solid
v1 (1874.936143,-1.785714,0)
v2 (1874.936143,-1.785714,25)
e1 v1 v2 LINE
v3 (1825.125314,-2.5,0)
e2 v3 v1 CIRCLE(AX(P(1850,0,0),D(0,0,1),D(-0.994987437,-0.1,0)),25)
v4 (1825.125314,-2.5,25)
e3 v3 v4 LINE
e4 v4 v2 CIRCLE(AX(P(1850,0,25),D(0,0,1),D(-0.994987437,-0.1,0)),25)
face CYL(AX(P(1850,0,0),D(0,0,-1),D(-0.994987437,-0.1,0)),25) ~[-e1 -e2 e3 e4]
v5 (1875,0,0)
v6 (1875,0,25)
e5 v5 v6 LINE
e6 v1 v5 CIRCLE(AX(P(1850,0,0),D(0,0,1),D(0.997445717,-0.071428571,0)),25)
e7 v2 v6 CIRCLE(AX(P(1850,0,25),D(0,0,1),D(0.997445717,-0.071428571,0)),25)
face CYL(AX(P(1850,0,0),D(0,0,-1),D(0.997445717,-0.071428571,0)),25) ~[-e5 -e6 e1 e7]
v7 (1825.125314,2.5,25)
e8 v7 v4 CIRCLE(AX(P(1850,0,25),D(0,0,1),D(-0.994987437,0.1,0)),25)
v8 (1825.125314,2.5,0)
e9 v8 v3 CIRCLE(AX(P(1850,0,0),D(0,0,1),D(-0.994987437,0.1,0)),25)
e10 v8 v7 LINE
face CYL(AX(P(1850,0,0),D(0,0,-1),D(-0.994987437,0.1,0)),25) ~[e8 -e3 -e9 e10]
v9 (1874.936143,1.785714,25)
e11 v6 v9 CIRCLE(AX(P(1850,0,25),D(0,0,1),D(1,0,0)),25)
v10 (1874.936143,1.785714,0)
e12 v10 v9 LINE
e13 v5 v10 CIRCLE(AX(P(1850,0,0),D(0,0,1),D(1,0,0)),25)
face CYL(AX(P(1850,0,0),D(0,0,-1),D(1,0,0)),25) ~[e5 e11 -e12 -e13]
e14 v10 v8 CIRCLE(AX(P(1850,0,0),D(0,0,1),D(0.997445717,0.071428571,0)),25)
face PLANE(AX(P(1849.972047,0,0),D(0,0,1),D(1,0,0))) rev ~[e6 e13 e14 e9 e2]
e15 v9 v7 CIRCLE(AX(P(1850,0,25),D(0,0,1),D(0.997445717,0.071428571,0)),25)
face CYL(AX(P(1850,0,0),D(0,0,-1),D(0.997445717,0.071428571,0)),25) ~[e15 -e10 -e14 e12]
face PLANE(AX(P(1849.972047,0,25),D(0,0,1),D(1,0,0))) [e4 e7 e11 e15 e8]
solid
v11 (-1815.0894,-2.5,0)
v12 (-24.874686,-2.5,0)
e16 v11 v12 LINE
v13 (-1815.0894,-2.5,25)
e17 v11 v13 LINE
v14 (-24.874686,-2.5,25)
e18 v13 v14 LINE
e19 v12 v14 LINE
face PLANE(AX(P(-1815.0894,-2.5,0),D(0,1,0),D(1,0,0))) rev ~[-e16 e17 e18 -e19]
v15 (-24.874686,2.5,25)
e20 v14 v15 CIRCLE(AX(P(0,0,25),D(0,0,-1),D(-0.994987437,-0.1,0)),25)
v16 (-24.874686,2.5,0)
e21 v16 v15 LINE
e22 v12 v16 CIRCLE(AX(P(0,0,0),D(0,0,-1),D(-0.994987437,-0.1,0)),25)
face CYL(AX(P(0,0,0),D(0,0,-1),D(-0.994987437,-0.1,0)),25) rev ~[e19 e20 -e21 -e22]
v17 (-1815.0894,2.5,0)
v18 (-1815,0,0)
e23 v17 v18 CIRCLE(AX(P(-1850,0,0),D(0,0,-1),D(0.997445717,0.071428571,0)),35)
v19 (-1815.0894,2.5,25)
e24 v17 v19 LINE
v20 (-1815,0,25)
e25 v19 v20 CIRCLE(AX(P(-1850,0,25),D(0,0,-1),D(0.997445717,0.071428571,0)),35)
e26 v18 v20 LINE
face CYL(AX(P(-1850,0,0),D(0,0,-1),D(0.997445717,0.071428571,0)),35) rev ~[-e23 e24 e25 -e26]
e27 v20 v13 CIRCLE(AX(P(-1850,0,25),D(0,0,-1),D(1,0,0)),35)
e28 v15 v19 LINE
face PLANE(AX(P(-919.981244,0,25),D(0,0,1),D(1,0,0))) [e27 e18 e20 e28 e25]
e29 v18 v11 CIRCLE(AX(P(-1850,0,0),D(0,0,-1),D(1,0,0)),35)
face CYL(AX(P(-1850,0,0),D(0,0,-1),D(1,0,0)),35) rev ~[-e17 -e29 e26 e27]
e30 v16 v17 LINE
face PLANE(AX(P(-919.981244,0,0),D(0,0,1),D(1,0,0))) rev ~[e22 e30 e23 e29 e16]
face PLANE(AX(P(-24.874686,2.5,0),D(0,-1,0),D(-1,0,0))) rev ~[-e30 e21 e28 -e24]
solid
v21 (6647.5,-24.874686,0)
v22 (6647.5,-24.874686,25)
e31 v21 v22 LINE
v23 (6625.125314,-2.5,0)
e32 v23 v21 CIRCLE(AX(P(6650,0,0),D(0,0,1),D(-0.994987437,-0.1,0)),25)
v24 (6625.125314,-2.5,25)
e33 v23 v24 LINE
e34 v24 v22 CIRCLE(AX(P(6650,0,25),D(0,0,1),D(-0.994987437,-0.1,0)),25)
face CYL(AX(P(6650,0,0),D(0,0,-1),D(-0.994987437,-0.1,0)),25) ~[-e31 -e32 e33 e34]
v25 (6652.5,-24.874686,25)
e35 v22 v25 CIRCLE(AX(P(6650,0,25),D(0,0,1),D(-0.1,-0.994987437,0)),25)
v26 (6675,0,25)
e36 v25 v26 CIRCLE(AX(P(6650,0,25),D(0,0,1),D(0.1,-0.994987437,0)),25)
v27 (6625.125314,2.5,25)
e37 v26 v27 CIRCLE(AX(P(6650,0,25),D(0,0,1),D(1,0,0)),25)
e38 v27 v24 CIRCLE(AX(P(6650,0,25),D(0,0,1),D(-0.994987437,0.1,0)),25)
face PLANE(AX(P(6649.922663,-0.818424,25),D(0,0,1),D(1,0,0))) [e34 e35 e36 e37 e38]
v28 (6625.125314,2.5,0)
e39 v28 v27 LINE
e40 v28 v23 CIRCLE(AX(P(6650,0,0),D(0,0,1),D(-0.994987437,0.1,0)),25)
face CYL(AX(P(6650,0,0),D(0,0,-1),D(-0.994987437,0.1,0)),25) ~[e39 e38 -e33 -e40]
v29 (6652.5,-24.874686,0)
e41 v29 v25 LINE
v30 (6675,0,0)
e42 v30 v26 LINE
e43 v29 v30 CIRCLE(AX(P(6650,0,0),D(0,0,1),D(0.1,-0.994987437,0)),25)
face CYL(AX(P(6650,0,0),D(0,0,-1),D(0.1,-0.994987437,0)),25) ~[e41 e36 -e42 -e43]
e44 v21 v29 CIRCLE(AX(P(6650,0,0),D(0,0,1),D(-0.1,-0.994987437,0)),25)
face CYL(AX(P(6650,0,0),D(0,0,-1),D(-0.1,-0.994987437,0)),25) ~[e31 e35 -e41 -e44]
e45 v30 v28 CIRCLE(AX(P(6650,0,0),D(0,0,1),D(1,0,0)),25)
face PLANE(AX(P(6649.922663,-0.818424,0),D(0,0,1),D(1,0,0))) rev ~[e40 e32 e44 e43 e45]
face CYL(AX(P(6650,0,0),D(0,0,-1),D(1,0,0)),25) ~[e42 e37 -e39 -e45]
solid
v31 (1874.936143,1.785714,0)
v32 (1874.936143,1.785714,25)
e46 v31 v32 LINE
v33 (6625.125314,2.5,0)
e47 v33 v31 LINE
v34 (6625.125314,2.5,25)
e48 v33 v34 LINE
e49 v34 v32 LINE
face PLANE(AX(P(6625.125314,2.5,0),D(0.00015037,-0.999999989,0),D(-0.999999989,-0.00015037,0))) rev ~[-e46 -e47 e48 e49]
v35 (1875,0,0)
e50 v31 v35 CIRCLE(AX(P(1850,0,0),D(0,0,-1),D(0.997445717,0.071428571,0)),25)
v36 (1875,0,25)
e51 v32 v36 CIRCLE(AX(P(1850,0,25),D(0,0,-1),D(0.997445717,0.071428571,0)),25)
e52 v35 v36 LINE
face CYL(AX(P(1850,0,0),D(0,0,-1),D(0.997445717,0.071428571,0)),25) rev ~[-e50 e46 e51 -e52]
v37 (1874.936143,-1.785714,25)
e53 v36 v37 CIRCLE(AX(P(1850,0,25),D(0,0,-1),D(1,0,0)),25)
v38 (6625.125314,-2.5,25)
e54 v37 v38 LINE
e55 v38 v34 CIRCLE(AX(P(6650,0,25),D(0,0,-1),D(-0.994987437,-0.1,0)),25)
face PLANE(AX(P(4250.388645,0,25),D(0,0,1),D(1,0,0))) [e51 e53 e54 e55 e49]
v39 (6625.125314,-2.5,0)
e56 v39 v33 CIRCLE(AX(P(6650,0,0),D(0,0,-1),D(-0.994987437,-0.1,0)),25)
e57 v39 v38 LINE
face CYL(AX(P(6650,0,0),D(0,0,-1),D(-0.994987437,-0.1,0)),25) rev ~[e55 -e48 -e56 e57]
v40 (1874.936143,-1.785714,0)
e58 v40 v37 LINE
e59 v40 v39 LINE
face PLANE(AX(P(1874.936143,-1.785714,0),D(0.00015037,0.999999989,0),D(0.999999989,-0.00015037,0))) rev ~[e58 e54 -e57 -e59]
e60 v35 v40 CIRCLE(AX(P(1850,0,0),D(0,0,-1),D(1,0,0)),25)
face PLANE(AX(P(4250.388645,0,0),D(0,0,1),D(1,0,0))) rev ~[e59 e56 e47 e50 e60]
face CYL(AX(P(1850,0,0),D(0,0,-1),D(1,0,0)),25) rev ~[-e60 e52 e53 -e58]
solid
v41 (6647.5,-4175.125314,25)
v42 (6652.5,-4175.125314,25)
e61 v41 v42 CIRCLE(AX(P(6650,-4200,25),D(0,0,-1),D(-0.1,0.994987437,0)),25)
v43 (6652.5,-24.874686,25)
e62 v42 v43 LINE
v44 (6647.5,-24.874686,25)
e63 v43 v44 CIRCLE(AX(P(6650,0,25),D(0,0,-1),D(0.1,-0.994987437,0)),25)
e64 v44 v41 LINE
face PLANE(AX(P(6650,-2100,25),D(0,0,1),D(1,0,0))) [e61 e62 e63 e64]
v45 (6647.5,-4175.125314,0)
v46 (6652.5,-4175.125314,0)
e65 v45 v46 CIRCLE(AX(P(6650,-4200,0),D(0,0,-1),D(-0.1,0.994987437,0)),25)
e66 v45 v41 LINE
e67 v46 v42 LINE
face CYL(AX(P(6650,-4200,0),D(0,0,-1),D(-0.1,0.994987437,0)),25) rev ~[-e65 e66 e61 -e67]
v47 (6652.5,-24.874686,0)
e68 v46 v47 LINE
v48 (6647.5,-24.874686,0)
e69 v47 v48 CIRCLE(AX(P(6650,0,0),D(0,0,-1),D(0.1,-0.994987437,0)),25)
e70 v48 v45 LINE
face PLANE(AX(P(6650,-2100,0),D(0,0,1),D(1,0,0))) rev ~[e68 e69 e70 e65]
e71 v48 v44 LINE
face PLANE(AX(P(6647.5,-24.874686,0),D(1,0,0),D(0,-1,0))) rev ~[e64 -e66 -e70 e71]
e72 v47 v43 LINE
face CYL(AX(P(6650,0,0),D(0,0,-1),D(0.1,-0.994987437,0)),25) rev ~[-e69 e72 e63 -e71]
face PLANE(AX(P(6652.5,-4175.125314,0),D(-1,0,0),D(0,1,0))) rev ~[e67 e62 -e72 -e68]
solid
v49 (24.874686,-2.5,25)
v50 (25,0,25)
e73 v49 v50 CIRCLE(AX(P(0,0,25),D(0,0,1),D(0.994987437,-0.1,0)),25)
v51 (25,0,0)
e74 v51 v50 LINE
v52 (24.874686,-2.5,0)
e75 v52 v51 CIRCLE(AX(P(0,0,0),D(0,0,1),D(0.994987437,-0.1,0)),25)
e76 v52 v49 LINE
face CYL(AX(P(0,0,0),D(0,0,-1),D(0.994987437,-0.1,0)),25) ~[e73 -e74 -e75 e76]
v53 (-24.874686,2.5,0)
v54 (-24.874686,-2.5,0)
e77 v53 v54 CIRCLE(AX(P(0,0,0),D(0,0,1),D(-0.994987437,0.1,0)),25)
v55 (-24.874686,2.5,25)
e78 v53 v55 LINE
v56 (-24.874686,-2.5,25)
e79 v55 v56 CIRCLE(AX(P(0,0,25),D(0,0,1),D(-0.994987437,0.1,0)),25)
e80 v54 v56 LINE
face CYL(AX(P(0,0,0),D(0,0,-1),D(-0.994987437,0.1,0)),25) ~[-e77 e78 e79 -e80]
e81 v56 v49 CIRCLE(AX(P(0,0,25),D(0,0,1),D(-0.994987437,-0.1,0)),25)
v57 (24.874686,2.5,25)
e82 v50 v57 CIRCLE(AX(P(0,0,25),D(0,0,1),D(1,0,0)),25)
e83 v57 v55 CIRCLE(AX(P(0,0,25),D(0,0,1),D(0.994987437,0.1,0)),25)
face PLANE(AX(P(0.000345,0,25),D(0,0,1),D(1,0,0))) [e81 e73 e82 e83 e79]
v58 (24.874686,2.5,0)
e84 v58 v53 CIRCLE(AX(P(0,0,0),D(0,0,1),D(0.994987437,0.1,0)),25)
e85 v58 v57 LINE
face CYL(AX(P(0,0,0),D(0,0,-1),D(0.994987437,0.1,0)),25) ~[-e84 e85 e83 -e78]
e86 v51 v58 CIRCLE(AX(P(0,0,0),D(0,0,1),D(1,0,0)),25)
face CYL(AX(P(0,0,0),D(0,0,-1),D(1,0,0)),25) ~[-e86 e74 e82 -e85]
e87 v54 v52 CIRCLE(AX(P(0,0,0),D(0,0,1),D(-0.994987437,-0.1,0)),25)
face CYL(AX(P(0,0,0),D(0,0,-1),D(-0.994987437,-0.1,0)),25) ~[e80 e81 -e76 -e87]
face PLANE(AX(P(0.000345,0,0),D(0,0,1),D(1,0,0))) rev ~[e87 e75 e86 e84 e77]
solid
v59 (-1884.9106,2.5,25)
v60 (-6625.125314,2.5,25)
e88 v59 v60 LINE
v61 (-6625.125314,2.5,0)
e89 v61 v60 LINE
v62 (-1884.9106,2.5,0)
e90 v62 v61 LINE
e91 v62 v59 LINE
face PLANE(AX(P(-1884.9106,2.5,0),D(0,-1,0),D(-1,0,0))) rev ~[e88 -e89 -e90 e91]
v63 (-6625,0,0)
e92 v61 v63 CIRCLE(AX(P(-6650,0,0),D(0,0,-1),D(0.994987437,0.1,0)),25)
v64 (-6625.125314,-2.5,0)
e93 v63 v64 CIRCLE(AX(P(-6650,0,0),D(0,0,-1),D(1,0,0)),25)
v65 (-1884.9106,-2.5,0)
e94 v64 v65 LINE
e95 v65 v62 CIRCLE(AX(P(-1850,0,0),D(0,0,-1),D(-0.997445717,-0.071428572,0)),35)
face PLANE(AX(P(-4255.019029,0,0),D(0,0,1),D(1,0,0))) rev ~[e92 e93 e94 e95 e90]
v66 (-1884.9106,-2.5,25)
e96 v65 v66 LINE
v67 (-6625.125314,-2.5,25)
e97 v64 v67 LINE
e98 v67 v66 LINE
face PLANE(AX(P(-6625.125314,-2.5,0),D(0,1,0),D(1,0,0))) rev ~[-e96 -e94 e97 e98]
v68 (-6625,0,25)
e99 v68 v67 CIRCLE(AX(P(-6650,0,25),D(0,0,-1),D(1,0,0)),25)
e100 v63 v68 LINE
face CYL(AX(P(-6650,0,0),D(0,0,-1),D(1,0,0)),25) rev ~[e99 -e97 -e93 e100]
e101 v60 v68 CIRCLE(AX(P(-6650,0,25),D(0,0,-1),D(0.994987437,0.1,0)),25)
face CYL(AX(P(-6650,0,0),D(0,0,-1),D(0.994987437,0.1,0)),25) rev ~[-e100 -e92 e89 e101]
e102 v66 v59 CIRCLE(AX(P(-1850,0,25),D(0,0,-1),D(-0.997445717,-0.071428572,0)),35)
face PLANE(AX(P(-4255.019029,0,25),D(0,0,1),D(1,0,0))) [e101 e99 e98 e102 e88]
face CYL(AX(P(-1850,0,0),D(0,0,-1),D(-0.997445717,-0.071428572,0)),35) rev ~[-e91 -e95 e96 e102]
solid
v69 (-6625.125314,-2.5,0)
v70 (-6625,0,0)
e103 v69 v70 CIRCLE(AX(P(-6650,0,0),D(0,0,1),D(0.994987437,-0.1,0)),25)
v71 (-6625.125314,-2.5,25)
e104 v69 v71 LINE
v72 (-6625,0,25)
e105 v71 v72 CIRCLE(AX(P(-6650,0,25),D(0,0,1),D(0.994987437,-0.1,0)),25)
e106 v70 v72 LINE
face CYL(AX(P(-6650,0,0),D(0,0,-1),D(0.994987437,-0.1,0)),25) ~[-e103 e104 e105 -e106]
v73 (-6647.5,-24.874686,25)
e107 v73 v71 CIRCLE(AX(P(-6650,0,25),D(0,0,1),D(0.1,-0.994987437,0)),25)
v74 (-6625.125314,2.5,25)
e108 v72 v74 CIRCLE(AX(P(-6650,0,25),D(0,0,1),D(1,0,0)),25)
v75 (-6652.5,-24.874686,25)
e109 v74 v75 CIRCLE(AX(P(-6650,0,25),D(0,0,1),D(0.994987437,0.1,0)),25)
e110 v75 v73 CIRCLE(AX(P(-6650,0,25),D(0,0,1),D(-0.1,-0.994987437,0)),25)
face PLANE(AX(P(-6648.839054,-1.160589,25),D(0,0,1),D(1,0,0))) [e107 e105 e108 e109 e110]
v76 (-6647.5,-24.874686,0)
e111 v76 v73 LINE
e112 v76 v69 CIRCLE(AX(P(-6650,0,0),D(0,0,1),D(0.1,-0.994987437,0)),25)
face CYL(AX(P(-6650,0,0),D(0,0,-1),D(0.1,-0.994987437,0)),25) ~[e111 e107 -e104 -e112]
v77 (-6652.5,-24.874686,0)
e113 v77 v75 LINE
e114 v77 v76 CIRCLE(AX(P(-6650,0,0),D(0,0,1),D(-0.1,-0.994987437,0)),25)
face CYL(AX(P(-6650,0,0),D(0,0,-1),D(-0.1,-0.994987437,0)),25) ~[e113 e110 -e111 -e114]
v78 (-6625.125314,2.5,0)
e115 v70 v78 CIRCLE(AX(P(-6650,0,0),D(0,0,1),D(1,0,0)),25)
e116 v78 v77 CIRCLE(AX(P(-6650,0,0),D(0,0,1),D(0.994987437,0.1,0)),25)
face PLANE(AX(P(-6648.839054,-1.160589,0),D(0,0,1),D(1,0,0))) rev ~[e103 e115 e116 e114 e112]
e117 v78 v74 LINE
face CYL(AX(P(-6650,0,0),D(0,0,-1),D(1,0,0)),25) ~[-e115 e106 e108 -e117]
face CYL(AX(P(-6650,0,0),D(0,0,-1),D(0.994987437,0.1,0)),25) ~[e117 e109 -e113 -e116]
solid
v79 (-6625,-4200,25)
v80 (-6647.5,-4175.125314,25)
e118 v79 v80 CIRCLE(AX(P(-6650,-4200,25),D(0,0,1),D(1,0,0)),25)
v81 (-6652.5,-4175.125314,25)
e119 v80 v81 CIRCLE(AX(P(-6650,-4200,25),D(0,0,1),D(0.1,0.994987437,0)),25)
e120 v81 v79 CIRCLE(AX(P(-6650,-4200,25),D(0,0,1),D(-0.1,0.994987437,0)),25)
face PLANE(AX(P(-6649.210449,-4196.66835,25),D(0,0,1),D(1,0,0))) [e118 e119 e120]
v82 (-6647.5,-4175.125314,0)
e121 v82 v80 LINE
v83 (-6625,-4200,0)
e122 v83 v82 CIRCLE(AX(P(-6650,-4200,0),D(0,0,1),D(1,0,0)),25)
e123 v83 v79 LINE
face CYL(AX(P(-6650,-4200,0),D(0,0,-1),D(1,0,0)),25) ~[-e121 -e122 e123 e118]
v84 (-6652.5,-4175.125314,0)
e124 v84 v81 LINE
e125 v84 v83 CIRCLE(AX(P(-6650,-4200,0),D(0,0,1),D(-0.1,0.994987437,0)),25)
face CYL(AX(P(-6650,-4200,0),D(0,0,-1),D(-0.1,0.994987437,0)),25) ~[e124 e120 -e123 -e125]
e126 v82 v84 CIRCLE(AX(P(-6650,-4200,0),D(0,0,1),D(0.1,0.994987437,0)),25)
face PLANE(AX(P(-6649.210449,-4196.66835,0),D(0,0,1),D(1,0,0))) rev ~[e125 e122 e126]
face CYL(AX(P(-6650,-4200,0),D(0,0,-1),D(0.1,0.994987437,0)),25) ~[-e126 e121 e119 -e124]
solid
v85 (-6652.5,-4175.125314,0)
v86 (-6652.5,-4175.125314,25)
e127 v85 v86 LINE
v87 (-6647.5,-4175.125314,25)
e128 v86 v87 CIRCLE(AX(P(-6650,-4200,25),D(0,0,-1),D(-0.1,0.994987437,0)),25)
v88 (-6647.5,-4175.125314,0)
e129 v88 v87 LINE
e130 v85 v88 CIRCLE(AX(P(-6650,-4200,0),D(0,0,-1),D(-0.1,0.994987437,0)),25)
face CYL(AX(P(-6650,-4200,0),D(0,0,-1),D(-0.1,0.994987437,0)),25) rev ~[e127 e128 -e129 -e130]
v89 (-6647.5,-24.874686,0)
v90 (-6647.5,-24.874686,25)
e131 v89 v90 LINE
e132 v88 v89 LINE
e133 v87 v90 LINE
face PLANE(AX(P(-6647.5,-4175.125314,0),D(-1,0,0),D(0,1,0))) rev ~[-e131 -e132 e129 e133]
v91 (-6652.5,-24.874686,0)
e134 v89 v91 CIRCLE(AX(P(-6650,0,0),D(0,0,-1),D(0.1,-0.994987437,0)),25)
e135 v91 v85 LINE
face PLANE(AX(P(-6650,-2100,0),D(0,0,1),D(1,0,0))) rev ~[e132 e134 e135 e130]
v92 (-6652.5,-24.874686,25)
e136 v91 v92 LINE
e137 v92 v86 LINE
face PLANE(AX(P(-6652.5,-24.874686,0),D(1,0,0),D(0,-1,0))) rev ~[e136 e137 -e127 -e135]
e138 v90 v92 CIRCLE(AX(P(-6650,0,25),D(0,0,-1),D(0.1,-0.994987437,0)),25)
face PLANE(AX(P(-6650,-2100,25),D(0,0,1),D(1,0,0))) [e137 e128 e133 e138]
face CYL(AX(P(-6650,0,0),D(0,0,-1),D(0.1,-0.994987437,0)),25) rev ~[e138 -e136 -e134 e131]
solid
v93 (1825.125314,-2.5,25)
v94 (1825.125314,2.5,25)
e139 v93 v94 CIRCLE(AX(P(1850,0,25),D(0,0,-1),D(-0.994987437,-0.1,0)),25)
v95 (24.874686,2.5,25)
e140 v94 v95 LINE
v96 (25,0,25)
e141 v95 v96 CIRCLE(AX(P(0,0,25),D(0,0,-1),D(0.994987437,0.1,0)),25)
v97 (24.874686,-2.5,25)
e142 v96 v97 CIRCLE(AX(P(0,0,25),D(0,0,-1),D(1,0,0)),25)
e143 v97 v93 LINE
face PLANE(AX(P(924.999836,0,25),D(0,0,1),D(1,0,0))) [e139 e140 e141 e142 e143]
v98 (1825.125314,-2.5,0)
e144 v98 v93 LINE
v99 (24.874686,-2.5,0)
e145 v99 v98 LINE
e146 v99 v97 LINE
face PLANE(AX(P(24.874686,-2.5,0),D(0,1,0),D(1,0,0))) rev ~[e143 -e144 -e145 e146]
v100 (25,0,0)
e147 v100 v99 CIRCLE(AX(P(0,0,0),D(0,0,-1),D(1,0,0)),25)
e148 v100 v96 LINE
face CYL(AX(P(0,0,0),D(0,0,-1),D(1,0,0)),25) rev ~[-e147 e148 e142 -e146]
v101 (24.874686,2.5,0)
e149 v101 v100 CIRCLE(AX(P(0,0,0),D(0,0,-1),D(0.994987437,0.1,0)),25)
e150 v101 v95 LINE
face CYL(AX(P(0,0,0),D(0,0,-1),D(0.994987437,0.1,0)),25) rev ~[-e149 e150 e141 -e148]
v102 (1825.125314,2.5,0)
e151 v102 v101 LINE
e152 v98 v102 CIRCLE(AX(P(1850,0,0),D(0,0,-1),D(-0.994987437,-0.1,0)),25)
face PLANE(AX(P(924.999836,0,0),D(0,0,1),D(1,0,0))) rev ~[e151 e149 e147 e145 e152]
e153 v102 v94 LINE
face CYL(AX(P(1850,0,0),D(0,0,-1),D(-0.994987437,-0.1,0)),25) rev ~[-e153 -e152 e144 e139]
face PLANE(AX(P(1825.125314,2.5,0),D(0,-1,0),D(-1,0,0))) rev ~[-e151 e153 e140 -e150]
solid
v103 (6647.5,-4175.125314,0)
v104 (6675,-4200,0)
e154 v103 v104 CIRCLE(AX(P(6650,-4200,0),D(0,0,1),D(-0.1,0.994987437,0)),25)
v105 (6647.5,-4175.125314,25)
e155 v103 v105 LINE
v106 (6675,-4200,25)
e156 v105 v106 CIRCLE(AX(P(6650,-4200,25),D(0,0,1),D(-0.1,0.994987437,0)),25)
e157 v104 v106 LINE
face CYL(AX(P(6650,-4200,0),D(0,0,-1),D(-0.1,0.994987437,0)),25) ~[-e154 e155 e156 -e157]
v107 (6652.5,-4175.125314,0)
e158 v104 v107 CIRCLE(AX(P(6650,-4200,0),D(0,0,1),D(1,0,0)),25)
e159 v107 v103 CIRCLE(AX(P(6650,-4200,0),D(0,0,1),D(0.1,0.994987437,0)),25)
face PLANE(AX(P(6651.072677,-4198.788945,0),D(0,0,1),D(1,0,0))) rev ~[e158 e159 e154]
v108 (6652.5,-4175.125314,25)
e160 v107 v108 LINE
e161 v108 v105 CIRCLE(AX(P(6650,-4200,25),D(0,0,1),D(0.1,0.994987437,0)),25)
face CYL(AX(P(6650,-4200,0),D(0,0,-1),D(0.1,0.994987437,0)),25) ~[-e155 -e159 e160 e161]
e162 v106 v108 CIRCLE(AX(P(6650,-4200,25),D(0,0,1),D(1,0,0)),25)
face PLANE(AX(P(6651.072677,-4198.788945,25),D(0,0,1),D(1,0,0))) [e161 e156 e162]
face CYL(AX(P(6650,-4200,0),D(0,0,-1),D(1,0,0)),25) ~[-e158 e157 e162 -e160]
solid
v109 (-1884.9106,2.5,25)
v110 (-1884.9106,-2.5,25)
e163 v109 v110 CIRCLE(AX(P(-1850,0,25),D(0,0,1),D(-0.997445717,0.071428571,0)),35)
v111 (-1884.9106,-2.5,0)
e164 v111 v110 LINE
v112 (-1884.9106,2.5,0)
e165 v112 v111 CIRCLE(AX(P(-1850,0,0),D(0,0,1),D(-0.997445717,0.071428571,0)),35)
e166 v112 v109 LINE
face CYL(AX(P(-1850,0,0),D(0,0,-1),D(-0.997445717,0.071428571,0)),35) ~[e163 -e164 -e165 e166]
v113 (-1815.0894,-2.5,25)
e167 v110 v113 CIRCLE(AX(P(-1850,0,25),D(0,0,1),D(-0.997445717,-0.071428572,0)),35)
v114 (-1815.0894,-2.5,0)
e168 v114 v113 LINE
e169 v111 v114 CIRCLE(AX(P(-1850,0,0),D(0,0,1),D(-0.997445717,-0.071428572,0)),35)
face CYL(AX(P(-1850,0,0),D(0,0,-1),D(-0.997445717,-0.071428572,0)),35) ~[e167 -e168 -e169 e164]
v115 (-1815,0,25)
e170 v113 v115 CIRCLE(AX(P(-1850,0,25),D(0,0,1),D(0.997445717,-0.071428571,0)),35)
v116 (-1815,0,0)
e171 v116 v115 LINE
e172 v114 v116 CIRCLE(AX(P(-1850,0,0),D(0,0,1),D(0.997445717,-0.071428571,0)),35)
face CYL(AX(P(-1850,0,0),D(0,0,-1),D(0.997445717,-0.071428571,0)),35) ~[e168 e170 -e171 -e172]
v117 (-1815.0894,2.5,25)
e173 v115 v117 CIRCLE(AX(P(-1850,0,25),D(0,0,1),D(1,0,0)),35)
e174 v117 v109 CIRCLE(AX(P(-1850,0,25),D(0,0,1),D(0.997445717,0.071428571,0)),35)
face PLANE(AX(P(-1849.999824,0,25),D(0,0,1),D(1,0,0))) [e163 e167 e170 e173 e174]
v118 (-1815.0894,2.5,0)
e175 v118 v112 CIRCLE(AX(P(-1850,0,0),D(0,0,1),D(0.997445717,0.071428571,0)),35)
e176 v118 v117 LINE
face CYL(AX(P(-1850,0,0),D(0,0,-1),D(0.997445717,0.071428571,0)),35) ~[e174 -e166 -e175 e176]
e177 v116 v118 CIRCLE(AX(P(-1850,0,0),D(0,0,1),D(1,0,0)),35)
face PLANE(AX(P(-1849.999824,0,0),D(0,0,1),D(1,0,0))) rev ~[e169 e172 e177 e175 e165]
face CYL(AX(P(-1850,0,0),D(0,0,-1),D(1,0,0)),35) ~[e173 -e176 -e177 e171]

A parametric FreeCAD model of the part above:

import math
import FreeCAD as App
import Part
import Sketcher

doc = App.newDocument("Part")
body = doc.addObject("PartDesign::Body", "Body")

sketch1 = body.newObject("Sketcher::SketchObject", "Sketch")
sketch1.AttachmentSupport = (doc.getObject("XY_Plane"), [""])
sketch1.MapMode = "FlatFace"
sketch1.addGeometry([
    Part.ArcOfCircle(Part.Circle(App.Vector(-1850, 0, 0), App.Vector(0, 0, 1), 35), math.radians(0), math.radians(4.1)),
    Part.ArcOfCircle(Part.Circle(App.Vector(-1850, 0, 0), App.Vector(0, 0, 1), 35), math.radians(-4.1), math.radians(0)),
    Part.LineSegment(App.Vector(-1815.1, -2.5, 0), App.Vector(-24.9, -2.5, 0)),
    Part.ArcOfCircle(Part.Circle(App.Vector(0, 0, 0), App.Vector(0, 0, 1), 25), math.radians(174.26), math.radians(185.74)),
    Part.LineSegment(App.Vector(-24.9, 2.5, 0), App.Vector(-1815.1, 2.5, 0)),
], False)
sketch1.addConstraint([
    Sketcher.Constraint("Tangent", 0, 1, 1, 2),
    Sketcher.Constraint("Coincident", 1, 1, 2, 1),
    Sketcher.Constraint("Coincident", 2, 2, 3, 2),
    Sketcher.Constraint("Coincident", 3, 1, 4, 1),
    Sketcher.Constraint("Coincident", 4, 2, 0, 2),
    Sketcher.Constraint("Horizontal", 2),
    Sketcher.Constraint("Horizontal", 4),
    Sketcher.Constraint("Coincident", 3, 3, -1, 1),
    Sketcher.Constraint("Equal", 0, 1),
    Sketcher.Constraint("Symmetric", 1, 1, 4, 2, -1),
    Sketcher.Constraint("PointOnObject", 0, 1, -1),
    Sketcher.Constraint("Radius", 0, 35.0),
    Sketcher.Constraint("Radius", 3, 25.0),
    Sketcher.Constraint("DistanceX", 0, 3, -1, 1, 1850.0),
    Sketcher.Constraint("DistanceY", 2, 2, 3, 1, 5.0),
])
pad1 = body.newObject("PartDesign::Pad", "Pad")
pad1.Profile = sketch1
pad1.Length = 25
body2 = doc.addObject("PartDesign::Body", "Body001")

sketch2 = body2.newObject("Sketcher::SketchObject", "Sketch001")
sketch2.AttachmentSupport = (doc.getObject("XY_Plane001"), [""])
sketch2.MapMode = "FlatFace"
sketch2.addGeometry([
    Part.ArcOfCircle(Part.Circle(App.Vector(-1850, 0, 0), App.Vector(0, 0, 1), 35), math.radians(175.9), math.radians(184.1)),
    Part.LineSegment(App.Vector(-1884.9, 2.5, 0), App.Vector(-6625.1, 2.5, 0)),
    Part.ArcOfCircle(Part.Circle(App.Vector(-6650, 0, 0), App.Vector(0, 0, 1), 25), math.radians(0), math.radians(5.74)),
    Part.ArcOfCircle(Part.Circle(App.Vector(-6650, 0, 0), App.Vector(0, 0, 1), 25), math.radians(-5.74), math.radians(0)),
    Part.LineSegment(App.Vector(-6625.1, -2.5, 0), App.Vector(-1884.9, -2.5, 0)),
], False)
sketch2.addConstraint([
    Sketcher.Constraint("Coincident", 0, 1, 1, 1),
    Sketcher.Constraint("Coincident", 1, 2, 2, 2),
    Sketcher.Constraint("Tangent", 2, 1, 3, 2),
    Sketcher.Constraint("Coincident", 3, 1, 4, 1),
    Sketcher.Constraint("Coincident", 4, 2, 0, 2),
    Sketcher.Constraint("Horizontal", 1),
    Sketcher.Constraint("Horizontal", 4),
    Sketcher.Constraint("Equal", 2, 3),
    Sketcher.Constraint("Symmetric", 1, 2, 3, 1, -1),
    Sketcher.Constraint("PointOnObject", 0, 3, -1),
    Sketcher.Constraint("PointOnObject", 2, 1, -1),
    Sketcher.Constraint("Radius", 0, 35.0),
    Sketcher.Constraint("Radius", 2, 25.0),
    Sketcher.Constraint("DistanceX", 0, 3, -1, 1, 1850.0),
    Sketcher.Constraint("DistanceX", 2, 3, -1, 1, 6650.0),
    Sketcher.Constraint("DistanceY", 3, 1, 1, 2, 5.0),
])
pad2 = body2.newObject("PartDesign::Pad", "Pad001")
pad2.Profile = sketch2
pad2.Length = 25
body3 = doc.addObject("PartDesign::Body", "Body002")

sketch3 = body3.newObject("Sketcher::SketchObject", "Sketch002")
sketch3.AttachmentSupport = (doc.getObject("XY_Plane002"), [""])
sketch3.MapMode = "FlatFace"
sketch3.addGeometry([
    Part.ArcOfCircle(Part.Circle(App.Vector(-6650, 0, 0), App.Vector(0, 0, 1), 25), math.radians(-95.74), math.radians(-84.26)),
    Part.LineSegment(App.Vector(-6652, -25, 0), App.Vector(-6652, -4175, 0)),
    Part.ArcOfCircle(Part.Circle(App.Vector(-6650, -4200, 0), App.Vector(0, 0, 1), 25), math.radians(84.26), math.radians(95.74)),
    Part.LineSegment(App.Vector(-6648, -4175, 0), App.Vector(-6648, -25, 0)),
], False)
sketch3.addConstraint([
    Sketcher.Constraint("Coincident", 0, 1, 1, 1),
    Sketcher.Constraint("Coincident", 1, 2, 2, 2),
    Sketcher.Constraint("Coincident", 2, 1, 3, 1),
    Sketcher.Constraint("Coincident", 3, 2, 0, 2),
    Sketcher.Constraint("Vertical", 1),
    Sketcher.Constraint("Vertical", 3),
    Sketcher.Constraint("Equal", 0, 2),
    Sketcher.Constraint("PointOnObject", 0, 3, -1),
    Sketcher.Constraint("Horizontal", 1, 2, 2, 1),
    Sketcher.Constraint("Horizontal", 0, 1, 3, 2),
    Sketcher.Constraint("Radius", 0, 25.0),
    Sketcher.Constraint("DistanceX", 0, 3, -1, 1, 6650.0),
    Sketcher.Constraint("DistanceY", 2, 3, -1, 1, 4200.0),
    Sketcher.Constraint("DistanceX", 1, 2, 2, 1, 5.0),
])
pad3 = body3.newObject("PartDesign::Pad", "Pad002")
pad3.Profile = sketch3
pad3.Length = 25
body4 = doc.addObject("PartDesign::Body", "Body003")

sketch4 = body4.newObject("Sketcher::SketchObject", "Sketch003")
sketch4.AttachmentSupport = (doc.getObject("XY_Plane003"), [""])
sketch4.MapMode = "FlatFace"
sketch4.addGeometry([
    Part.LineSegment(App.Vector(1825.1, 2.5, 0), App.Vector(24.9, 2.5, 0)),
    Part.ArcOfCircle(Part.Circle(App.Vector(0, 0, 0), App.Vector(0, 0, 1), 25), math.radians(0), math.radians(5.74)),
    Part.ArcOfCircle(Part.Circle(App.Vector(0, 0, 0), App.Vector(0, 0, 1), 25), math.radians(-5.74), math.radians(0)),
    Part.LineSegment(App.Vector(24.9, -2.5, 0), App.Vector(1825.1, -2.5, 0)),
    Part.ArcOfCircle(Part.Circle(App.Vector(1850, 0, 0), App.Vector(0, 0, 1), 25), math.radians(174.26), math.radians(185.74)),
], False)
sketch4.addConstraint([
    Sketcher.Constraint("Coincident", 0, 2, 1, 2),
    Sketcher.Constraint("Tangent", 1, 1, 2, 2),
    Sketcher.Constraint("Coincident", 2, 1, 3, 1),
    Sketcher.Constraint("Coincident", 3, 2, 4, 2),
    Sketcher.Constraint("Coincident", 4, 1, 0, 1),
    Sketcher.Constraint("Horizontal", 0),
    Sketcher.Constraint("Horizontal", 3),
    Sketcher.Constraint("Coincident", 1, 3, -1, 1),
    Sketcher.Constraint("Equal", 1, 2),
    Sketcher.Constraint("Equal", 2, 4),
    Sketcher.Constraint("Symmetric", 3, 2, 4, 1, -1),
    Sketcher.Constraint("PointOnObject", 1, 1, -1),
    Sketcher.Constraint("Radius", 1, 25.0),
    Sketcher.Constraint("DistanceX", -1, 1, 4, 3, 1850.0),
    Sketcher.Constraint("DistanceY", 2, 1, 0, 2, 5.0),
])
pad4 = body4.newObject("PartDesign::Pad", "Pad003")
pad4.Profile = sketch4
pad4.Length = 25
body5 = doc.addObject("PartDesign::Body", "Body004")

sketch5 = body5.newObject("Sketcher::SketchObject", "Sketch004")
sketch5.AttachmentSupport = (doc.getObject("XY_Plane004"), [""])
sketch5.MapMode = "FlatFace"
sketch5.addGeometry([
    Part.LineSegment(App.Vector(6625.1, 2.5, 0), App.Vector(1874.9, 1.8, 0)),
    Part.ArcOfCircle(Part.Circle(App.Vector(1850, 0, 0), App.Vector(0, 0, 1), 25), math.radians(0), math.radians(4.1)),
    Part.ArcOfCircle(Part.Circle(App.Vector(1850, 0, 0), App.Vector(0, 0, 1), 25), math.radians(-4.1), math.radians(0)),
    Part.LineSegment(App.Vector(1874.9, -1.8, 0), App.Vector(6625.1, -2.5, 0)),
    Part.ArcOfCircle(Part.Circle(App.Vector(6650, 0, 0), App.Vector(0, 0, 1), 25), math.radians(174.26), math.radians(185.74)),
], False)
sketch5.addConstraint([
    Sketcher.Constraint("Coincident", 0, 2, 1, 2),
    Sketcher.Constraint("Tangent", 1, 1, 2, 2),
    Sketcher.Constraint("Coincident", 2, 1, 3, 1),
    Sketcher.Constraint("Coincident", 3, 2, 4, 2),
    Sketcher.Constraint("Coincident", 4, 1, 0, 1),
    Sketcher.Constraint("Equal", 1, 2),
    Sketcher.Constraint("Equal", 2, 4),
    Sketcher.Constraint("Symmetric", 0, 2, 2, 1, -1),
    Sketcher.Constraint("Symmetric", 3, 2, 4, 1, -1),
    Sketcher.Constraint("PointOnObject", 1, 1, -1),
    Sketcher.Constraint("Radius", 1, 25.0),
    Sketcher.Constraint("DistanceX", -1, 1, 1, 3, 1850.0),
    Sketcher.Constraint("DistanceX", -1, 1, 4, 3, 6650.0),
    Sketcher.Constraint("DistanceY", 3, 2, 4, 1, 5.0),
    Sketcher.Constraint("DistanceY", 2, 1, 0, 2, 3.571429),
])
pad5 = body5.newObject("PartDesign::Pad", "Pad004")
pad5.Profile = sketch5
pad5.Length = 25
body6 = doc.addObject("PartDesign::Body", "Body005")

sketch6 = body6.newObject("Sketcher::SketchObject", "Sketch005")
sketch6.AttachmentSupport = (doc.getObject("XY_Plane005"), [""])
sketch6.MapMode = "FlatFace"
sketch6.addGeometry([
    Part.ArcOfCircle(Part.Circle(App.Vector(6650, 0, 0), App.Vector(0, 0, 1), 25), math.radians(-95.74), math.radians(-84.26)),
    Part.LineSegment(App.Vector(6648, -25, 0), App.Vector(6648, -4175, 0)),
    Part.ArcOfCircle(Part.Circle(App.Vector(6650, -4200, 0), App.Vector(0, 0, 1), 25), math.radians(84.26), math.radians(95.74)),
    Part.LineSegment(App.Vector(6652, -4175, 0), App.Vector(6652, -25, 0)),
], False)
sketch6.addConstraint([
    Sketcher.Constraint("Coincident", 0, 1, 1, 1),
    Sketcher.Constraint("Coincident", 1, 2, 2, 2),
    Sketcher.Constraint("Coincident", 2, 1, 3, 1),
    Sketcher.Constraint("Coincident", 3, 2, 0, 2),
    Sketcher.Constraint("Vertical", 1),
    Sketcher.Constraint("Vertical", 3),
    Sketcher.Constraint("Equal", 0, 2),
    Sketcher.Constraint("PointOnObject", 0, 3, -1),
    Sketcher.Constraint("Horizontal", 1, 2, 2, 1),
    Sketcher.Constraint("Horizontal", 0, 1, 3, 2),
    Sketcher.Constraint("Radius", 0, 25.0),
    Sketcher.Constraint("DistanceX", -1, 1, 0, 3, 6650.0),
    Sketcher.Constraint("DistanceY", 2, 3, -1, 1, 4200.0),
    Sketcher.Constraint("DistanceX", 1, 2, 2, 1, 5.0),
])
pad6 = body6.newObject("PartDesign::Pad", "Pad005")
pad6.Profile = sketch6
pad6.Length = 25
body7 = doc.addObject("PartDesign::Body", "Body006")

sketch7 = body7.newObject("Sketcher::SketchObject", "Sketch006")
sketch7.AttachmentSupport = (doc.getObject("XY_Plane006"), [""])
sketch7.MapMode = "FlatFace"
sketch7.addGeometry([
    Part.ArcOfCircle(Part.Circle(App.Vector(-6650, -4200, 0), App.Vector(0, 0, 1), 25), math.radians(96), math.radians(360)),
    Part.ArcOfCircle(Part.Circle(App.Vector(-6650, -4200, 0), App.Vector(0, 0, 1), 25), math.radians(0), math.radians(84)),
    Part.ArcOfCircle(Part.Circle(App.Vector(-6650, -4200, 0), App.Vector(0, 0, 1), 25), math.radians(84.26), math.radians(95.74)),
], False)
sketch7.addConstraint([
    Sketcher.Constraint("Tangent", 0, 2, 1, 1),
    Sketcher.Constraint("Tangent", 1, 2, 2, 1),
    Sketcher.Constraint("Tangent", 2, 2, 0, 1),
    Sketcher.Constraint("Horizontal", 2, 3, 0, 2),
    Sketcher.Constraint("Horizontal", 1, 2, 2, 2),
    Sketcher.Constraint("Radius", 0, 25.0),
    Sketcher.Constraint("DistanceX", 0, 3, -1, 1, 6650.0),
    Sketcher.Constraint("DistanceY", 0, 3, -1, 1, 4200.0),
    Sketcher.Constraint("DistanceX", 2, 2, 1, 2, 5.0),
])
pad7 = body7.newObject("PartDesign::Pad", "Pad006")
pad7.Profile = sketch7
pad7.Length = 25
body8 = doc.addObject("PartDesign::Body", "Body007")

sketch8 = body8.newObject("Sketcher::SketchObject", "Sketch007")
sketch8.AttachmentSupport = (doc.getObject("XY_Plane007"), [""])
sketch8.MapMode = "FlatFace"
sketch8.addGeometry([
    Part.ArcOfCircle(Part.Circle(App.Vector(-6650, 0, 0), App.Vector(0, 0, 1), 25), math.radians(0), math.radians(5.74)),
    Part.ArcOfCircle(Part.Circle(App.Vector(-6650, 0, 0), App.Vector(0, 0, 1), 25), math.radians(6), math.radians(264)),
    Part.ArcOfCircle(Part.Circle(App.Vector(-6650, 0, 0), App.Vector(0, 0, 1), 25), math.radians(-95.74), math.radians(-84.26)),
    Part.ArcOfCircle(Part.Circle(App.Vector(-6650, 0, 0), App.Vector(0, 0, 1), 25), math.radians(-84), math.radians(-6)),
    Part.ArcOfCircle(Part.Circle(App.Vector(-6650, 0, 0), App.Vector(0, 0, 1), 25), math.radians(-5.74), math.radians(0)),
], False)
sketch8.addConstraint([
    Sketcher.Constraint("Tangent", 0, 2, 1, 1),
    Sketcher.Constraint("Tangent", 1, 2, 2, 1),
    Sketcher.Constraint("Tangent", 2, 2, 3, 1),
    Sketcher.Constraint("Tangent", 3, 2, 4, 1),
    Sketcher.Constraint("Tangent", 4, 2, 0, 1),
    Sketcher.Constraint("Coincident", 2, 3, 0, 3),
    Sketcher.Constraint("Symmetric", 0, 2, 3, 2, -1),
    Sketcher.Constraint("PointOnObject", 4, 2, -1),
    Sketcher.Constraint("Horizontal", 1, 2, 2, 2),
    Sketcher.Constraint("Radius", 0, 25.0),
    Sketcher.Constraint("DistanceX", 0, 3, -1, 1, 6650.0),
    Sketcher.Constraint("DistanceX", 1, 2, 2, 2, 5.0),
    Sketcher.Constraint("DistanceY", 3, 2, 0, 2, 5.0),
])
pad8 = body8.newObject("PartDesign::Pad", "Pad007")
pad8.Profile = sketch8
pad8.Length = 25
body9 = doc.addObject("PartDesign::Body", "Body008")

sketch9 = body9.newObject("Sketcher::SketchObject", "Sketch008")
sketch9.AttachmentSupport = (doc.getObject("XY_Plane008"), [""])
sketch9.MapMode = "FlatFace"
sketch9.addGeometry([
    Part.ArcOfCircle(Part.Circle(App.Vector(-1850, 0, 0), App.Vector(0, 0, 1), 35), math.radians(-4.1), math.radians(0)),
    Part.ArcOfCircle(Part.Circle(App.Vector(-1850, 0, 0), App.Vector(0, 0, 1), 35), math.radians(0), math.radians(4.1)),
    Part.ArcOfCircle(Part.Circle(App.Vector(-1850, 0, 0), App.Vector(0, 0, 1), 35), math.radians(4), math.radians(176)),
    Part.ArcOfCircle(Part.Circle(App.Vector(-1850, 0, 0), App.Vector(0, 0, 1), 35), math.radians(175.9), math.radians(184.1)),
    Part.ArcOfCircle(Part.Circle(App.Vector(-1850, 0, 0), App.Vector(0, 0, 1), 35), math.radians(-176), math.radians(-4)),
], False)
sketch9.addConstraint([
    Sketcher.Constraint("Tangent", 0, 2, 1, 1),
    Sketcher.Constraint("Tangent", 1, 2, 2, 1),
    Sketcher.Constraint("Tangent", 2, 2, 3, 1),
    Sketcher.Constraint("Tangent", 3, 2, 4, 1),
    Sketcher.Constraint("Tangent", 4, 2, 0, 1),
    Sketcher.Constraint("Coincident", 2, 3, 0, 3),
    Sketcher.Constraint("Symmetric", 2, 2, 3, 2, -1),
    Sketcher.Constraint("PointOnObject", 0, 2, -1),
    Sketcher.Constraint("Horizontal", 1, 2, 2, 2),
    Sketcher.Constraint("Horizontal", 3, 2, 4, 2),
    Sketcher.Constraint("Radius", 0, 35.0),
    Sketcher.Constraint("DistanceX", 0, 3, -1, 1, 1850.0),
    Sketcher.Constraint("DistanceY", 3, 2, 2, 2, 5.0),
])
pad9 = body9.newObject("PartDesign::Pad", "Pad008")
pad9.Profile = sketch9
pad9.Length = 25
body10 = doc.addObject("PartDesign::Body", "Body009")

sketch10 = body10.newObject("Sketcher::SketchObject", "Sketch009")
sketch10.AttachmentSupport = (doc.getObject("XY_Plane009"), [""])
sketch10.MapMode = "FlatFace"
sketch10.addGeometry([
    Part.ArcOfCircle(Part.Circle(App.Vector(0, 0, 0), App.Vector(0, 0, 1), 25), math.radians(6), math.radians(174)),
    Part.ArcOfCircle(Part.Circle(App.Vector(0, 0, 0), App.Vector(0, 0, 1), 25), math.radians(174.26), math.radians(185.74)),
    Part.ArcOfCircle(Part.Circle(App.Vector(0, 0, 0), App.Vector(0, 0, 1), 25), math.radians(-174), math.radians(-6)),
    Part.ArcOfCircle(Part.Circle(App.Vector(0, 0, 0), App.Vector(0, 0, 1), 25), math.radians(-5.74), math.radians(0)),
    Part.ArcOfCircle(Part.Circle(App.Vector(0, 0, 0), App.Vector(0, 0, 1), 25), math.radians(0), math.radians(5.74)),
], False)
sketch10.addConstraint([
    Sketcher.Constraint("Tangent", 0, 2, 1, 1),
    Sketcher.Constraint("Tangent", 1, 2, 2, 1),
    Sketcher.Constraint("Tangent", 2, 2, 3, 1),
    Sketcher.Constraint("Tangent", 3, 2, 4, 1),
    Sketcher.Constraint("Tangent", 4, 2, 0, 1),
    Sketcher.Constraint("Coincident", 0, 3, -1, 1),
    Sketcher.Constraint("Coincident", 2, 3, -1, 1),
    Sketcher.Constraint("PointOnObject", 3, 2, -1),
    Sketcher.Constraint("Horizontal", 1, 2, 2, 2),
    Sketcher.Constraint("Horizontal", 0, 2, 4, 2),
    Sketcher.Constraint("Vertical", 0, 2, 1, 2),
    Sketcher.Constraint("Radius", 0, 25.0),
    Sketcher.Constraint("DistanceY", 1, 2, 0, 2, 5.0),
])
pad10 = body10.newObject("PartDesign::Pad", "Pad009")
pad10.Profile = sketch10
pad10.Length = 25
body11 = doc.addObject("PartDesign::Body", "Body010")

sketch11 = body11.newObject("Sketcher::SketchObject", "Sketch010")
sketch11.AttachmentSupport = (doc.getObject("XY_Plane010"), [""])
sketch11.MapMode = "FlatFace"
sketch11.addGeometry([
    Part.ArcOfCircle(Part.Circle(App.Vector(1850, 0, 0), App.Vector(0, 0, 1), 25), math.radians(4), math.radians(174)),
    Part.ArcOfCircle(Part.Circle(App.Vector(1850, 0, 0), App.Vector(0, 0, 1), 25), math.radians(174.26), math.radians(185.74)),
    Part.ArcOfCircle(Part.Circle(App.Vector(1850, 0, 0), App.Vector(0, 0, 1), 25), math.radians(-174), math.radians(-4)),
    Part.ArcOfCircle(Part.Circle(App.Vector(1850, 0, 0), App.Vector(0, 0, 1), 25), math.radians(-4.1), math.radians(0)),
    Part.ArcOfCircle(Part.Circle(App.Vector(1850, 0, 0), App.Vector(0, 0, 1), 25), math.radians(0), math.radians(4.1)),
], False)
sketch11.addConstraint([
    Sketcher.Constraint("Tangent", 0, 2, 1, 1),
    Sketcher.Constraint("Tangent", 1, 2, 2, 1),
    Sketcher.Constraint("Tangent", 2, 2, 3, 1),
    Sketcher.Constraint("Tangent", 3, 2, 4, 1),
    Sketcher.Constraint("Tangent", 4, 2, 0, 1),
    Sketcher.Constraint("Coincident", 3, 3, 0, 3),
    Sketcher.Constraint("Symmetric", 0, 2, 1, 2, -1),
    Sketcher.Constraint("PointOnObject", 3, 2, -1),
    Sketcher.Constraint("Vertical", 2, 2, 4, 2),
    Sketcher.Constraint("Radius", 0, 25.0),
    Sketcher.Constraint("DistanceX", -1, 1, 0, 3, 1850.0),
    Sketcher.Constraint("DistanceY", 1, 2, 0, 2, 5.0),
    Sketcher.Constraint("DistanceY", 2, 2, 4, 2, 3.571429),
])
pad11 = body11.newObject("PartDesign::Pad", "Pad010")
pad11.Profile = sketch11
pad11.Length = 25
body12 = doc.addObject("PartDesign::Body", "Body011")

sketch12 = body12.newObject("Sketcher::SketchObject", "Sketch011")
sketch12.AttachmentSupport = (doc.getObject("XY_Plane011"), [""])
sketch12.MapMode = "FlatFace"
sketch12.addGeometry([
    Part.ArcOfCircle(Part.Circle(App.Vector(6650, 0, 0), App.Vector(0, 0, 1), 25), math.radians(0), math.radians(174)),
    Part.ArcOfCircle(Part.Circle(App.Vector(6650, 0, 0), App.Vector(0, 0, 1), 25), math.radians(174.26), math.radians(185.74)),
    Part.ArcOfCircle(Part.Circle(App.Vector(6650, 0, 0), App.Vector(0, 0, 1), 25), math.radians(-174), math.radians(-96)),
    Part.ArcOfCircle(Part.Circle(App.Vector(6650, 0, 0), App.Vector(0, 0, 1), 25), math.radians(-95.74), math.radians(-84.26)),
    Part.ArcOfCircle(Part.Circle(App.Vector(6650, 0, 0), App.Vector(0, 0, 1), 25), math.radians(-84), math.radians(0)),
], False)
sketch12.addConstraint([
    Sketcher.Constraint("Tangent", 0, 2, 1, 1),
    Sketcher.Constraint("Tangent", 1, 2, 2, 1),
    Sketcher.Constraint("Tangent", 2, 2, 3, 1),
    Sketcher.Constraint("Tangent", 3, 2, 4, 1),
    Sketcher.Constraint("Tangent", 4, 2, 0, 1),
    Sketcher.Constraint("Coincident", 2, 3, 0, 3),
    Sketcher.Constraint("Symmetric", 0, 2, 1, 2, -1),
    Sketcher.Constraint("PointOnObject", 4, 2, -1),
    Sketcher.Constraint("Horizontal", 2, 2, 3, 2),
    Sketcher.Constraint("Radius", 0, 25.0),
    Sketcher.Constraint("DistanceX", -1, 1, 0, 3, 6650.0),
    Sketcher.Constraint("DistanceY", 1, 2, 0, 2, 5.0),
    Sketcher.Constraint("DistanceX", 2, 2, 3, 2, 5.0),
])
pad12 = body12.newObject("PartDesign::Pad", "Pad011")
pad12.Profile = sketch12
pad12.Length = 25
body13 = doc.addObject("PartDesign::Body", "Body012")

sketch13 = body13.newObject("Sketcher::SketchObject", "Sketch012")
sketch13.AttachmentSupport = (doc.getObject("XY_Plane012"), [""])
sketch13.MapMode = "FlatFace"
sketch13.addGeometry([
    Part.ArcOfCircle(Part.Circle(App.Vector(6650, -4200, 0), App.Vector(0, 0, 1), 25), math.radians(84.26), math.radians(95.74)),
    Part.ArcOfCircle(Part.Circle(App.Vector(6650, -4200, 0), App.Vector(0, 0, 1), 25), math.radians(96), math.radians(360)),
    Part.ArcOfCircle(Part.Circle(App.Vector(6650, -4200, 0), App.Vector(0, 0, 1), 25), math.radians(0), math.radians(84)),
], False)
sketch13.addConstraint([
    Sketcher.Constraint("Tangent", 0, 2, 1, 1),
    Sketcher.Constraint("Tangent", 1, 2, 2, 1),
    Sketcher.Constraint("Tangent", 2, 2, 0, 1),
    Sketcher.Constraint("Horizontal", 2, 3, 1, 2),
    Sketcher.Constraint("Horizontal", 0, 2, 2, 2),
    Sketcher.Constraint("Radius", 0, 25.0),
    Sketcher.Constraint("DistanceX", -1, 1, 0, 3, 6650.0),
    Sketcher.Constraint("DistanceY", 0, 3, -1, 1, 4200.0),
    Sketcher.Constraint("DistanceX", 0, 2, 2, 2, 5.0),
])
pad13 = body13.newObject("PartDesign::Pad", "Pad012")
pad13.Profile = sketch13
pad13.Length = 25

doc.recompute()
